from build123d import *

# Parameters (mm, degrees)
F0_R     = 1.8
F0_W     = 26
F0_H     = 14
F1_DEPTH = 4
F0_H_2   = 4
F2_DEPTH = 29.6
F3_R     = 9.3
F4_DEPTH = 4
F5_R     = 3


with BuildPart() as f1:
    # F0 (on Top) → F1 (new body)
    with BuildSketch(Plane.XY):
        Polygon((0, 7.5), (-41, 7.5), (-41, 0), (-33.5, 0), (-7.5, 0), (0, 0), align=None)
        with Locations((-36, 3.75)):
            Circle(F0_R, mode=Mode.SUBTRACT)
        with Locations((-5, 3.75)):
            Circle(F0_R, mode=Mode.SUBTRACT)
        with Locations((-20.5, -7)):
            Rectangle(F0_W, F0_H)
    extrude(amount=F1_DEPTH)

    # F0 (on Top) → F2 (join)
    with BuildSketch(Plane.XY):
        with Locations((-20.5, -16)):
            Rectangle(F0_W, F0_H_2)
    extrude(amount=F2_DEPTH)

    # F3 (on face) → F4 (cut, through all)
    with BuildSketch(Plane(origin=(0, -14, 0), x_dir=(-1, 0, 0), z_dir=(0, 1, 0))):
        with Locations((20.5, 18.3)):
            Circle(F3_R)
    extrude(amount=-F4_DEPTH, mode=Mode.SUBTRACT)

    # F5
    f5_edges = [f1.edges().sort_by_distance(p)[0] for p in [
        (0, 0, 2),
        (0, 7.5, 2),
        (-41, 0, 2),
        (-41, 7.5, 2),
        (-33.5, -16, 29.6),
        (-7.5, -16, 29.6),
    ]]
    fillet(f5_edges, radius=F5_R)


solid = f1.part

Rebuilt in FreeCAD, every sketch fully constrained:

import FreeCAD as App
import Part
import Sketcher
from FreeCAD import Vector


def edges_at(feature, points):
    """Names of the edges that pass closest to the given points."""
    edges = feature.Shape.Edges
    near = lambda p: min(range(len(edges)), key=lambda i: edges[i].distToShape(Part.Vertex(*p))[0])
    return sorted({f"Edge{near(p) + 1}" for p in points})


def add_polygon(sketch, points):
    """Adds a closed chain of lines whose ends are joined by coincident constraints."""
    first, n = sketch.GeometryCount, len(points)
    for a, b in zip(points, points[1:] + points[:1]):
        sketch.addGeometry(Part.LineSegment(App.Vector(*a, 0), App.Vector(*b, 0)), False)
    for i in range(n):
        sketch.addConstraint(Sketcher.Constraint("Coincident", first + i, 2, first + (i + 1) % n, 1))

doc = App.newDocument("Part")
body = doc.addObject("PartDesign::Body", "Body")

# Sketch on XY plane
sketch1 = body.newObject("Sketcher::SketchObject", "Sketch")
sketch1.AttachmentSupport = (doc.getObject("XY_Plane"), [""])
sketch1.MapMode = "FlatFace"
add_polygon(sketch1, [(0, 7.5), (-41, 7.5), (-41, 0), (-33.5, 0), (-33.5, -14), (-7.5, -14), (-7.5, 0), (0, 0)])  # lines 0-7
sketch1.addGeometry(Part.Circle(Vector(-36, 3.75, 0), Vector(0, 0, 1), 1.8), False)  # 8
sketch1.addGeometry(Part.Circle(Vector(-5, 3.75, 0), Vector(0, 0, 1), 1.8), False)  # 9
sketch1.addConstraint([
    Sketcher.Constraint("Horizontal", 0),
    Sketcher.Constraint("Vertical", 1),
    Sketcher.Constraint("Horizontal", 2),
    Sketcher.Constraint("Vertical", 3),
    Sketcher.Constraint("Horizontal", 4),
    Sketcher.Constraint("Vertical", 5),
    Sketcher.Constraint("Horizontal", 6),
    Sketcher.Constraint("Vertical", 7),
    Sketcher.Constraint("Coincident", 6, 2, -1, 1),
    Sketcher.Constraint("Equal", 8, 9),
    Sketcher.Constraint("PointOnObject", 1, 2, -1),
    Sketcher.Constraint("Horizontal", 8, 3, 9, 3),
    Sketcher.Constraint("Equal", 2, 6),
    Sketcher.Constraint("Equal", 6, 1),
    Sketcher.Constraint("Diameter", 8, 3.6),
    Sketcher.Constraint("DistanceX", 0, 2, 0, 1, 41.0),
    Sketcher.Constraint("DistanceX", 4, 1, 4, 2, 26.0),
    Sketcher.Constraint("DistanceY", 3, 2, 3, 1, 14.0),
    Sketcher.Constraint("DistanceX", 8, 3, -1, 1, 36.0),
    Sketcher.Constraint("DistanceX", 9, 3, -1, 1, 5.0),
    Sketcher.Constraint("DistanceY", -1, 1, 8, 3, 3.75),
])
pad1 = body.newObject("PartDesign::Pad", "Pad")
pad1.Profile = sketch1
pad1.Length = 4

# Sketch on XY plane
sketch2 = body.newObject("Sketcher::SketchObject", "Sketch001")
sketch2.AttachmentSupport = (doc.getObject("XY_Plane"), [""])
sketch2.MapMode = "FlatFace"
add_polygon(sketch2, [(-33.5, -14), (-33.5, -18), (-7.5, -18), (-7.5, -14)])  # lines 0-3
sketch2.addConstraint([
    Sketcher.Constraint("Vertical", 0),
    Sketcher.Constraint("Horizontal", 1),
    Sketcher.Constraint("Vertical", 2),
    Sketcher.Constraint("Horizontal", 3),
    Sketcher.Constraint("DistanceX", 1, 1, 1, 2, 26.0),
    Sketcher.Constraint("DistanceY", 0, 2, 0, 1, 4.0),
    Sketcher.Constraint("DistanceY", 0, 2, -1, 1, 18.0),
    Sketcher.Constraint("DistanceX", 0, 2, -1, 1, 33.5),
])
pad2 = body.newObject("PartDesign::Pad", "Pad001")
pad2.Profile = sketch2
pad2.Length = 29.6

# Sketch on XZ plane
sketch3 = body.newObject("Sketcher::SketchObject", "Sketch002")
sketch3.AttachmentSupport = (doc.getObject("XZ_Plane"), [""])
sketch3.MapMode = "FlatFace"
sketch3.AttachmentOffset = App.Placement(Vector(0, 0, 14), App.Rotation())
sketch3.addGeometry(Part.Circle(Vector(-20.5, 18.3, 0), Vector(0, 0, 1), 9.3), False)
sketch3.addConstraint([
    Sketcher.Constraint("Diameter", 0, 18.6),
    Sketcher.Constraint("DistanceX", 0, 3, -1, 1, 20.5),
    Sketcher.Constraint("DistanceY", -1, 1, 0, 3, 18.3),
])
pocket1 = body.newObject("PartDesign::Pocket", "Pocket")
pocket1.Profile = sketch3
pocket1.Type = "ThroughAll"
pocket1.Reversed = True
doc.recompute()

fillet = body.newObject("PartDesign::Fillet", "Fillet")
fillet.Base = (pocket1, edges_at(pocket1, [
    (0, 0, 2),
    (0, 7.5, 2),
    (-41, 0, 2),
    (-41, 7.5, 2),
    (-33.5, -16, 29.6),
    (-7.5, -16, 29.6),
]))
fillet.Radius = 3

doc.recompute()
